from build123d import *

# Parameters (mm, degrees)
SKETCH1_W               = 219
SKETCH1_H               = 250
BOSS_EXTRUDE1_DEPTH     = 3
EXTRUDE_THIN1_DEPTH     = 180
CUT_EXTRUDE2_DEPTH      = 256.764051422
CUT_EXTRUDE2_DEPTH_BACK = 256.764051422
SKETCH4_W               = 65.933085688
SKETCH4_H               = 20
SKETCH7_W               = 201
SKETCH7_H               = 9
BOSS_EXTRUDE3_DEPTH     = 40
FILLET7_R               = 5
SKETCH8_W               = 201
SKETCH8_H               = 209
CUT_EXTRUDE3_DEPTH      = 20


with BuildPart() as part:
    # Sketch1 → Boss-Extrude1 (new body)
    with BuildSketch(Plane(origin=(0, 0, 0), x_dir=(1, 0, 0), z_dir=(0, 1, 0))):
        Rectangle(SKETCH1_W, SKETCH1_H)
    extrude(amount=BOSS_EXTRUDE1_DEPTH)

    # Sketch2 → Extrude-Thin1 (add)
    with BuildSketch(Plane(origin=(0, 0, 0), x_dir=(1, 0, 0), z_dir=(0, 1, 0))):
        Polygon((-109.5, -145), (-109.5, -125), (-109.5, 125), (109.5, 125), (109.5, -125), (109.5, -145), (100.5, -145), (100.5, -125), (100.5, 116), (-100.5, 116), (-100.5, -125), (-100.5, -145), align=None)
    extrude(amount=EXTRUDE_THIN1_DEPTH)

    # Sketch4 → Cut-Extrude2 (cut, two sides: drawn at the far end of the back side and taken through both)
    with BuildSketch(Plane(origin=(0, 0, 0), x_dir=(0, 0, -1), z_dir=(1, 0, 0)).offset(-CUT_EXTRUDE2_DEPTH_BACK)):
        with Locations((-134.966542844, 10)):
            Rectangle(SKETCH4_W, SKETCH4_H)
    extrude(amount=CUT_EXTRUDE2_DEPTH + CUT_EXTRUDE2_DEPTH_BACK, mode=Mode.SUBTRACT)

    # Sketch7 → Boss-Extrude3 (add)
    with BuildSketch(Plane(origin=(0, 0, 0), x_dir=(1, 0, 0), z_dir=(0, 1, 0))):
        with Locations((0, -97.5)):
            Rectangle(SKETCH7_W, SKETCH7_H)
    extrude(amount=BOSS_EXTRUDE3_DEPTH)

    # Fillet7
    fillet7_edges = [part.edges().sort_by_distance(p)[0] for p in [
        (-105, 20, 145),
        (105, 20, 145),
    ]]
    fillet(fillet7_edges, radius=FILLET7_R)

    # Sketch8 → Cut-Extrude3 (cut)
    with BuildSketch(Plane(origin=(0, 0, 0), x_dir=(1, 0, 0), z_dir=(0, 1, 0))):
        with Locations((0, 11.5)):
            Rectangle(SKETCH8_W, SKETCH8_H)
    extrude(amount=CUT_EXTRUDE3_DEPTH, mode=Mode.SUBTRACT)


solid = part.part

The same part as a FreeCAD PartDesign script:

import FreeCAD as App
import Part
import Sketcher
from FreeCAD import Vector
Q = App.Units.Quantity


def edges_at(feature, points):
    """Names of the edges that pass closest to the given points."""
    edges = feature.Shape.Edges
    near = lambda p: min(range(len(edges)), key=lambda i: edges[i].distToShape(Part.Vertex(*p))[0])
    return sorted({f"Edge{near(p) + 1}" for p in points})


def add_polygon(sketch, points):
    """Adds a closed chain of lines whose ends are joined by coincident constraints."""
    first, n = sketch.GeometryCount, len(points)
    for a, b in zip(points, points[1:] + points[:1]):
        sketch.addGeometry(Part.LineSegment(App.Vector(*a, 0), App.Vector(*b, 0)), False)
    for i in range(n):
        sketch.addConstraint(Sketcher.Constraint("Coincident", first + i, 2, first + (i + 1) % n, 1))

doc = App.newDocument("Part")
body = doc.addObject("PartDesign::Body", "Body")

# Sketch on XZ plane
sketch1 = doc.addObject("Sketcher::SketchObject", "Sketch")
body.addObject(sketch1)
sketch1.AttachmentSupport = (doc.XZ_Plane, [""])
sketch1.MapMode = "FlatFace"
add_polygon(sketch1, [(-110, -125), (-110, 125), (110, 125), (110, -125)])  # lines 0-3
sketch1.addConstraint(Sketcher.Constraint("Vertical", 0))
sketch1.addConstraint(Sketcher.Constraint("Horizontal", 1))
sketch1.addConstraint(Sketcher.Constraint("Vertical", 2))
sketch1.addConstraint(Sketcher.Constraint("Horizontal", 3))
sketch1.addConstraint(Sketcher.Constraint("Symmetric", 0, 2, 2, 2, -1, 1))
sketch1.addConstraint(Sketcher.Constraint("DistanceX", 1, 1, 1, 2, Q("219 mm")))
sketch1.addConstraint(Sketcher.Constraint("DistanceY", 0, 1, 0, 2, Q("250 mm")))
pad1 = doc.addObject("PartDesign::Pad", "Pad")
body.addObject(pad1)
pad1.Profile = sketch1
pad1.Length = 3
pad1.Reversed = True

# Sketch on XZ plane
sketch2 = doc.addObject("Sketcher::SketchObject", "Sketch001")
body.addObject(sketch2)
sketch2.AttachmentSupport = (doc.XZ_Plane, [""])
sketch2.MapMode = "FlatFace"
add_polygon(sketch2, [(-110, -125), (-110, 145), (-100, 145), (-100, -116), (100, -116), (100, 145), (110, 145), (110, -125)])  # lines 0-7
sketch2.addConstraint(Sketcher.Constraint("Vertical", 0))
sketch2.addConstraint(Sketcher.Constraint("Horizontal", 1))
sketch2.addConstraint(Sketcher.Constraint("Vertical", 2))
sketch2.addConstraint(Sketcher.Constraint("Horizontal", 3))
sketch2.addConstraint(Sketcher.Constraint("Vertical", 4))
sketch2.addConstraint(Sketcher.Constraint("Horizontal", 5))
sketch2.addConstraint(Sketcher.Constraint("Vertical", 6))
sketch2.addConstraint(Sketcher.Constraint("Horizontal", 7))
sketch2.addConstraint(Sketcher.Constraint("Symmetric", 1, 2, 4, 2, -2))
sketch2.addConstraint(Sketcher.Constraint("Equal", 1, 5))
sketch2.addConstraint(Sketcher.Constraint("DistanceX", 1, 1, 1, 2, Q("9 mm")))
sketch2.addConstraint(Sketcher.Constraint("DistanceX", 3, 1, 3, 2, Q("201 mm")))
sketch2.addConstraint(Sketcher.Constraint("DistanceY", 0, 1, 0, 2, Q("270 mm")))
sketch2.addConstraint(Sketcher.Constraint("DistanceY", 2, 2, 2, 1, Q("261 mm")))
sketch2.addConstraint(Sketcher.Constraint("DistanceY", -1, 1, 0, 2, Q("145 mm")))
pad2 = doc.addObject("PartDesign::Pad", "Pad001")
body.addObject(pad2)
pad2.Profile = sketch2
pad2.Length = 180
pad2.Reversed = True

# Sketch on YZ plane
sketch3 = doc.addObject("Sketcher::SketchObject", "Sketch002")
body.addObject(sketch3)
sketch3.AttachmentSupport = (doc.YZ_Plane, [""])
sketch3.MapMode = "FlatFace"
add_polygon(sketch3, [(20, 168), (0, 168), (0, 102), (20, 102)])  # lines 0-3
sketch3.addConstraint(Sketcher.Constraint("Horizontal", 0))
sketch3.addConstraint(Sketcher.Constraint("Vertical", 1))
sketch3.addConstraint(Sketcher.Constraint("Horizontal", 2))
sketch3.addConstraint(Sketcher.Constraint("Vertical", 3))
sketch3.addConstraint(Sketcher.Constraint("PointOnObject", 0, 2, -2))
sketch3.addConstraint(Sketcher.Constraint("DistanceX", 0, 2, 0, 1, Q("20 mm")))
sketch3.addConstraint(Sketcher.Constraint("DistanceY", -1, 1, 1, 2, Q("102 mm")))
sketch3.addConstraint(Sketcher.Constraint("DistanceY", 1, 2, 1, 1, Q("65.933086 mm")))
pocket1 = doc.addObject("PartDesign::Pocket", "Pocket")
body.addObject(pocket1)
pocket1.Profile = sketch3
pocket1.Type = "ThroughAll"
pocket1.Midplane = True

# Sketch on XZ plane
sketch4 = doc.addObject("Sketcher::SketchObject", "Sketch003")
body.addObject(sketch4)
sketch4.AttachmentSupport = (doc.XZ_Plane, [""])
sketch4.MapMode = "FlatFace"
add_polygon(sketch4, [(-100, 93), (-100, 102), (100, 102), (100, 93)])  # lines 0-3
sketch4.addConstraint(Sketcher.Constraint("Vertical", 0))
sketch4.addConstraint(Sketcher.Constraint("Horizontal", 1))
sketch4.addConstraint(Sketcher.Constraint("Vertical", 2))
sketch4.addConstraint(Sketcher.Constraint("Horizontal", 3))
sketch4.addConstraint(Sketcher.Constraint("DistanceX", 1, 1, 1, 2, Q("201 mm")))
sketch4.addConstraint(Sketcher.Constraint("DistanceY", 0, 1, 0, 2, Q("9 mm")))
sketch4.addConstraint(Sketcher.Constraint("DistanceY", -1, 1, 0, 2, Q("102 mm")))
sketch4.addConstraint(Sketcher.Constraint("DistanceX", 0, 2, -1, 1, Q("100.5 mm")))
pad3 = doc.addObject("PartDesign::Pad", "Pad002")
body.addObject(pad3)
pad3.Profile = sketch4
pad3.Length = 40
pad3.Reversed = True
doc.recompute()

fillet = doc.addObject("PartDesign::Fillet", "Fillet")
body.addObject(fillet)
fillet.Base = (pad3, edges_at(pad3, [(-105, 20, 145), (105, 20, 145)]))
fillet.Radius = 5

# Sketch on XZ plane
sketch5 = doc.addObject("Sketcher::SketchObject", "Sketch004")
body.addObject(sketch5)
sketch5.AttachmentSupport = (doc.XZ_Plane, [""])
sketch5.MapMode = "FlatFace"
add_polygon(sketch5, [(-100, -116), (-100, 93), (100, 93), (100, -116)])  # lines 0-3
sketch5.addConstraint(Sketcher.Constraint("Vertical", 0))
sketch5.addConstraint(Sketcher.Constraint("Horizontal", 1))
sketch5.addConstraint(Sketcher.Constraint("Vertical", 2))
sketch5.addConstraint(Sketcher.Constraint("Horizontal", 3))
sketch5.addConstraint(Sketcher.Constraint("DistanceX", 1, 1, 1, 2, Q("201 mm")))
sketch5.addConstraint(Sketcher.Constraint("DistanceY", 0, 1, 0, 2, Q("209 mm")))
sketch5.addConstraint(Sketcher.Constraint("DistanceY", -1, 1, 0, 2, Q("93 mm")))
sketch5.addConstraint(Sketcher.Constraint("DistanceX", 0, 2, -1, 1, Q("100.5 mm")))
pocket2 = doc.addObject("PartDesign::Pocket", "Pocket001")
body.addObject(pocket2)
pocket2.Profile = sketch5
pocket2.Length = 20

doc.recompute()
